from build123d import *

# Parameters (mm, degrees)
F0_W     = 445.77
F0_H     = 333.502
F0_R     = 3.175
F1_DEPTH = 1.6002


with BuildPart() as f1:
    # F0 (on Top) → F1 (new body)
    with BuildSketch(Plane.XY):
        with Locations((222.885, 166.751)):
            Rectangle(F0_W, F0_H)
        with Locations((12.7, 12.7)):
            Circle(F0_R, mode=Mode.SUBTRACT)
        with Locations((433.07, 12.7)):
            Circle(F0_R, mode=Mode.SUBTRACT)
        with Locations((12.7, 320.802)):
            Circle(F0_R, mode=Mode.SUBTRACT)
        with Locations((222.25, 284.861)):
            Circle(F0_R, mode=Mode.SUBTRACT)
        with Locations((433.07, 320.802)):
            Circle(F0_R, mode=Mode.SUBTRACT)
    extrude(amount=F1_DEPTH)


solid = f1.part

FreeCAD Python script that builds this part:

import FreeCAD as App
import Part
import Sketcher
from FreeCAD import Vector
Q = App.Units.Quantity

doc = App.newDocument("Part")
body = doc.addObject("PartDesign::Body", "Body")

# Sketch on XY plane
sketch1 = doc.addObject("Sketcher::SketchObject", "Sketch")
body.addObject(sketch1)
sketch1.AttachmentSupport = (doc.XY_Plane, [""])
sketch1.MapMode = "FlatFace"
sketch1.addGeometry(Part.LineSegment(Vector(0, 333.5, 0), Vector(0, 0, 0)), False)
sketch1.addGeometry(Part.LineSegment(Vector(0, 0, 0), Vector(445.8, 0, 0)), False)
sketch1.addGeometry(Part.LineSegment(Vector(445.8, 0, 0), Vector(445.8, 333.5, 0)), False)
sketch1.addGeometry(Part.LineSegment(Vector(445.8, 333.5, 0), Vector(0, 333.5, 0)), False)
sketch1.addGeometry(Part.Circle(Vector(12.7, 12.7, 0), Vector(0, 0, 1), 3.2), False)
sketch1.addGeometry(Part.Circle(Vector(433.1, 12.7, 0), Vector(0, 0, 1), 3.2), False)
sketch1.addGeometry(Part.Circle(Vector(12.7, 320.8, 0), Vector(0, 0, 1), 3.2), False)
sketch1.addGeometry(Part.Circle(Vector(222.2, 284.9, 0), Vector(0, 0, 1), 3.2), False)
sketch1.addGeometry(Part.Circle(Vector(433.1, 320.8, 0), Vector(0, 0, 1), 3.2), False)
sketch1.addConstraint(Sketcher.Constraint("Coincident", 0, 2, 1, 1))
sketch1.addConstraint(Sketcher.Constraint("Coincident", 1, 2, 2, 1))
sketch1.addConstraint(Sketcher.Constraint("Coincident", 2, 2, 3, 1))
sketch1.addConstraint(Sketcher.Constraint("Coincident", 3, 2, 0, 1))
sketch1.addConstraint(Sketcher.Constraint("Vertical", 0))
sketch1.addConstraint(Sketcher.Constraint("Horizontal", 1))
sketch1.addConstraint(Sketcher.Constraint("Vertical", 2))
sketch1.addConstraint(Sketcher.Constraint("Horizontal", 3))
sketch1.addConstraint(Sketcher.Constraint("Coincident", 0, 2, -1, 1))
sketch1.addConstraint(Sketcher.Constraint("Equal", 4, 5))
sketch1.addConstraint(Sketcher.Constraint("Equal", 5, 6))
sketch1.addConstraint(Sketcher.Constraint("Equal", 6, 7))
sketch1.addConstraint(Sketcher.Constraint("Equal", 7, 8))
sketch1.addConstraint(Sketcher.Constraint("Horizontal", 4, 3, 5, 3))
sketch1.addConstraint(Sketcher.Constraint("Horizontal", 6, 3, 8, 3))
sketch1.addConstraint(Sketcher.Constraint("Vertical", 4, 3, 6, 3))
sketch1.addConstraint(Sketcher.Constraint("Vertical", 5, 3, 8, 3))
sketch1.addConstraint(Sketcher.Constraint("Diameter", 4, Q("0.25 in")))
sketch1.addConstraint(Sketcher.Constraint("DistanceX", 1, 1, 1, 2, Q("17.55 in")))
sketch1.addConstraint(Sketcher.Constraint("DistanceY", 0, 2, 0, 1, Q("13.13 in")))
sketch1.addConstraint(Sketcher.Constraint("DistanceX", -1, 1, 4, 3, Q("0.5 in")))
sketch1.addConstraint(Sketcher.Constraint("DistanceY", -1, 1, 4, 3, Q("0.5 in")))
sketch1.addConstraint(Sketcher.Constraint("DistanceX", 7, 3, 5, 3, Q("8.3 in")))
sketch1.addConstraint(Sketcher.Constraint("DistanceX", 5, 3, 1, 2, Q("0.5 in")))
sketch1.addConstraint(Sketcher.Constraint("DistanceY", 8, 3, 2, 2, Q("0.5 in")))
sketch1.addConstraint(Sketcher.Constraint("DistanceY", -1, 1, 7, 3, Q("11.215 in")))
pad1 = doc.addObject("PartDesign::Pad", "Pad")
body.addObject(pad1)
pad1.Profile = sketch1
pad1.Length = Q("0.063 in")

doc.recompute()
